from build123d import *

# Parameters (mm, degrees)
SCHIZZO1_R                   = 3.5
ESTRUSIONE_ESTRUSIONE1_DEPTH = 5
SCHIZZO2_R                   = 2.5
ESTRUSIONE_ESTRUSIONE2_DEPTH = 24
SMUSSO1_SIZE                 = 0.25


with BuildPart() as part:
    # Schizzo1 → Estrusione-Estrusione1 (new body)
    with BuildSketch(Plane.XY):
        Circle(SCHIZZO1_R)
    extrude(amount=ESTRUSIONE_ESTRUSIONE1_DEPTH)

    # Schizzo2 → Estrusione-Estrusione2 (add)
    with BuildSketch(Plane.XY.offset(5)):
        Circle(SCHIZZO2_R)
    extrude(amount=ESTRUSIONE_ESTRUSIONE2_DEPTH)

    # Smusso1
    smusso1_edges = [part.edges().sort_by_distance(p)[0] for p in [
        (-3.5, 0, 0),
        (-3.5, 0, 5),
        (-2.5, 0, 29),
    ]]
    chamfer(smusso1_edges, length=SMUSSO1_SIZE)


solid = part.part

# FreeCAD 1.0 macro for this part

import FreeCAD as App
import Part
import Sketcher
Q = App.Units.Quantity


def edges_at(feature, points):
    """Names of the edges that pass closest to the given points."""
    edges = feature.Shape.Edges
    near = lambda p: min(range(len(edges)), key=lambda i: edges[i].distToShape(Part.Vertex(*p))[0])
    return sorted({f"Edge{near(p) + 1}" for p in points})

doc = App.newDocument("Part")
body = doc.addObject("PartDesign::Body", "Body")

sketch1 = body.newObject("Sketcher::SketchObject", "Sketch")
sketch1.AttachmentSupport = (doc.getObject("XY_Plane"), [""])
sketch1.MapMode = "FlatFace"
sketch1.addGeometry(Part.Circle(App.Vector(0, 0, 0), App.Vector(0, 0, 1), 3.5), False)
sketch1.addConstraint([
    Sketcher.Constraint("Coincident", 0, 3, -1, 1),
    Sketcher.Constraint("Diameter", 0, Q("7 mm")),
])
pad1 = body.newObject("PartDesign::Pad", "Pad")
pad1.Profile = sketch1
pad1.Length = 5

sketch2 = body.newObject("Sketcher::SketchObject", "Sketch001")
sketch2.AttachmentSupport = (doc.getObject("XY_Plane"), [""])
sketch2.MapMode = "FlatFace"
sketch2.AttachmentOffset = App.Placement(App.Vector(0, 0, 5), App.Rotation())
sketch2.addGeometry(Part.Circle(App.Vector(0, 0, 0), App.Vector(0, 0, 1), 2.5), False)
sketch2.addConstraint([
    Sketcher.Constraint("Coincident", 0, 3, -1, 1),
    Sketcher.Constraint("Diameter", 0, Q("5 mm")),
])
pad2 = body.newObject("PartDesign::Pad", "Pad001")
pad2.Profile = sketch2
pad2.Length = 24
doc.recompute()

chamfer = body.newObject("PartDesign::Chamfer", "Chamfer")
chamfer.Base = (pad2, edges_at(pad2, [(-3.5, 0, 0), (-3.5, 0, 5), (-2.5, 0, 29)]))
chamfer.Size = 0.25

doc.recompute()
